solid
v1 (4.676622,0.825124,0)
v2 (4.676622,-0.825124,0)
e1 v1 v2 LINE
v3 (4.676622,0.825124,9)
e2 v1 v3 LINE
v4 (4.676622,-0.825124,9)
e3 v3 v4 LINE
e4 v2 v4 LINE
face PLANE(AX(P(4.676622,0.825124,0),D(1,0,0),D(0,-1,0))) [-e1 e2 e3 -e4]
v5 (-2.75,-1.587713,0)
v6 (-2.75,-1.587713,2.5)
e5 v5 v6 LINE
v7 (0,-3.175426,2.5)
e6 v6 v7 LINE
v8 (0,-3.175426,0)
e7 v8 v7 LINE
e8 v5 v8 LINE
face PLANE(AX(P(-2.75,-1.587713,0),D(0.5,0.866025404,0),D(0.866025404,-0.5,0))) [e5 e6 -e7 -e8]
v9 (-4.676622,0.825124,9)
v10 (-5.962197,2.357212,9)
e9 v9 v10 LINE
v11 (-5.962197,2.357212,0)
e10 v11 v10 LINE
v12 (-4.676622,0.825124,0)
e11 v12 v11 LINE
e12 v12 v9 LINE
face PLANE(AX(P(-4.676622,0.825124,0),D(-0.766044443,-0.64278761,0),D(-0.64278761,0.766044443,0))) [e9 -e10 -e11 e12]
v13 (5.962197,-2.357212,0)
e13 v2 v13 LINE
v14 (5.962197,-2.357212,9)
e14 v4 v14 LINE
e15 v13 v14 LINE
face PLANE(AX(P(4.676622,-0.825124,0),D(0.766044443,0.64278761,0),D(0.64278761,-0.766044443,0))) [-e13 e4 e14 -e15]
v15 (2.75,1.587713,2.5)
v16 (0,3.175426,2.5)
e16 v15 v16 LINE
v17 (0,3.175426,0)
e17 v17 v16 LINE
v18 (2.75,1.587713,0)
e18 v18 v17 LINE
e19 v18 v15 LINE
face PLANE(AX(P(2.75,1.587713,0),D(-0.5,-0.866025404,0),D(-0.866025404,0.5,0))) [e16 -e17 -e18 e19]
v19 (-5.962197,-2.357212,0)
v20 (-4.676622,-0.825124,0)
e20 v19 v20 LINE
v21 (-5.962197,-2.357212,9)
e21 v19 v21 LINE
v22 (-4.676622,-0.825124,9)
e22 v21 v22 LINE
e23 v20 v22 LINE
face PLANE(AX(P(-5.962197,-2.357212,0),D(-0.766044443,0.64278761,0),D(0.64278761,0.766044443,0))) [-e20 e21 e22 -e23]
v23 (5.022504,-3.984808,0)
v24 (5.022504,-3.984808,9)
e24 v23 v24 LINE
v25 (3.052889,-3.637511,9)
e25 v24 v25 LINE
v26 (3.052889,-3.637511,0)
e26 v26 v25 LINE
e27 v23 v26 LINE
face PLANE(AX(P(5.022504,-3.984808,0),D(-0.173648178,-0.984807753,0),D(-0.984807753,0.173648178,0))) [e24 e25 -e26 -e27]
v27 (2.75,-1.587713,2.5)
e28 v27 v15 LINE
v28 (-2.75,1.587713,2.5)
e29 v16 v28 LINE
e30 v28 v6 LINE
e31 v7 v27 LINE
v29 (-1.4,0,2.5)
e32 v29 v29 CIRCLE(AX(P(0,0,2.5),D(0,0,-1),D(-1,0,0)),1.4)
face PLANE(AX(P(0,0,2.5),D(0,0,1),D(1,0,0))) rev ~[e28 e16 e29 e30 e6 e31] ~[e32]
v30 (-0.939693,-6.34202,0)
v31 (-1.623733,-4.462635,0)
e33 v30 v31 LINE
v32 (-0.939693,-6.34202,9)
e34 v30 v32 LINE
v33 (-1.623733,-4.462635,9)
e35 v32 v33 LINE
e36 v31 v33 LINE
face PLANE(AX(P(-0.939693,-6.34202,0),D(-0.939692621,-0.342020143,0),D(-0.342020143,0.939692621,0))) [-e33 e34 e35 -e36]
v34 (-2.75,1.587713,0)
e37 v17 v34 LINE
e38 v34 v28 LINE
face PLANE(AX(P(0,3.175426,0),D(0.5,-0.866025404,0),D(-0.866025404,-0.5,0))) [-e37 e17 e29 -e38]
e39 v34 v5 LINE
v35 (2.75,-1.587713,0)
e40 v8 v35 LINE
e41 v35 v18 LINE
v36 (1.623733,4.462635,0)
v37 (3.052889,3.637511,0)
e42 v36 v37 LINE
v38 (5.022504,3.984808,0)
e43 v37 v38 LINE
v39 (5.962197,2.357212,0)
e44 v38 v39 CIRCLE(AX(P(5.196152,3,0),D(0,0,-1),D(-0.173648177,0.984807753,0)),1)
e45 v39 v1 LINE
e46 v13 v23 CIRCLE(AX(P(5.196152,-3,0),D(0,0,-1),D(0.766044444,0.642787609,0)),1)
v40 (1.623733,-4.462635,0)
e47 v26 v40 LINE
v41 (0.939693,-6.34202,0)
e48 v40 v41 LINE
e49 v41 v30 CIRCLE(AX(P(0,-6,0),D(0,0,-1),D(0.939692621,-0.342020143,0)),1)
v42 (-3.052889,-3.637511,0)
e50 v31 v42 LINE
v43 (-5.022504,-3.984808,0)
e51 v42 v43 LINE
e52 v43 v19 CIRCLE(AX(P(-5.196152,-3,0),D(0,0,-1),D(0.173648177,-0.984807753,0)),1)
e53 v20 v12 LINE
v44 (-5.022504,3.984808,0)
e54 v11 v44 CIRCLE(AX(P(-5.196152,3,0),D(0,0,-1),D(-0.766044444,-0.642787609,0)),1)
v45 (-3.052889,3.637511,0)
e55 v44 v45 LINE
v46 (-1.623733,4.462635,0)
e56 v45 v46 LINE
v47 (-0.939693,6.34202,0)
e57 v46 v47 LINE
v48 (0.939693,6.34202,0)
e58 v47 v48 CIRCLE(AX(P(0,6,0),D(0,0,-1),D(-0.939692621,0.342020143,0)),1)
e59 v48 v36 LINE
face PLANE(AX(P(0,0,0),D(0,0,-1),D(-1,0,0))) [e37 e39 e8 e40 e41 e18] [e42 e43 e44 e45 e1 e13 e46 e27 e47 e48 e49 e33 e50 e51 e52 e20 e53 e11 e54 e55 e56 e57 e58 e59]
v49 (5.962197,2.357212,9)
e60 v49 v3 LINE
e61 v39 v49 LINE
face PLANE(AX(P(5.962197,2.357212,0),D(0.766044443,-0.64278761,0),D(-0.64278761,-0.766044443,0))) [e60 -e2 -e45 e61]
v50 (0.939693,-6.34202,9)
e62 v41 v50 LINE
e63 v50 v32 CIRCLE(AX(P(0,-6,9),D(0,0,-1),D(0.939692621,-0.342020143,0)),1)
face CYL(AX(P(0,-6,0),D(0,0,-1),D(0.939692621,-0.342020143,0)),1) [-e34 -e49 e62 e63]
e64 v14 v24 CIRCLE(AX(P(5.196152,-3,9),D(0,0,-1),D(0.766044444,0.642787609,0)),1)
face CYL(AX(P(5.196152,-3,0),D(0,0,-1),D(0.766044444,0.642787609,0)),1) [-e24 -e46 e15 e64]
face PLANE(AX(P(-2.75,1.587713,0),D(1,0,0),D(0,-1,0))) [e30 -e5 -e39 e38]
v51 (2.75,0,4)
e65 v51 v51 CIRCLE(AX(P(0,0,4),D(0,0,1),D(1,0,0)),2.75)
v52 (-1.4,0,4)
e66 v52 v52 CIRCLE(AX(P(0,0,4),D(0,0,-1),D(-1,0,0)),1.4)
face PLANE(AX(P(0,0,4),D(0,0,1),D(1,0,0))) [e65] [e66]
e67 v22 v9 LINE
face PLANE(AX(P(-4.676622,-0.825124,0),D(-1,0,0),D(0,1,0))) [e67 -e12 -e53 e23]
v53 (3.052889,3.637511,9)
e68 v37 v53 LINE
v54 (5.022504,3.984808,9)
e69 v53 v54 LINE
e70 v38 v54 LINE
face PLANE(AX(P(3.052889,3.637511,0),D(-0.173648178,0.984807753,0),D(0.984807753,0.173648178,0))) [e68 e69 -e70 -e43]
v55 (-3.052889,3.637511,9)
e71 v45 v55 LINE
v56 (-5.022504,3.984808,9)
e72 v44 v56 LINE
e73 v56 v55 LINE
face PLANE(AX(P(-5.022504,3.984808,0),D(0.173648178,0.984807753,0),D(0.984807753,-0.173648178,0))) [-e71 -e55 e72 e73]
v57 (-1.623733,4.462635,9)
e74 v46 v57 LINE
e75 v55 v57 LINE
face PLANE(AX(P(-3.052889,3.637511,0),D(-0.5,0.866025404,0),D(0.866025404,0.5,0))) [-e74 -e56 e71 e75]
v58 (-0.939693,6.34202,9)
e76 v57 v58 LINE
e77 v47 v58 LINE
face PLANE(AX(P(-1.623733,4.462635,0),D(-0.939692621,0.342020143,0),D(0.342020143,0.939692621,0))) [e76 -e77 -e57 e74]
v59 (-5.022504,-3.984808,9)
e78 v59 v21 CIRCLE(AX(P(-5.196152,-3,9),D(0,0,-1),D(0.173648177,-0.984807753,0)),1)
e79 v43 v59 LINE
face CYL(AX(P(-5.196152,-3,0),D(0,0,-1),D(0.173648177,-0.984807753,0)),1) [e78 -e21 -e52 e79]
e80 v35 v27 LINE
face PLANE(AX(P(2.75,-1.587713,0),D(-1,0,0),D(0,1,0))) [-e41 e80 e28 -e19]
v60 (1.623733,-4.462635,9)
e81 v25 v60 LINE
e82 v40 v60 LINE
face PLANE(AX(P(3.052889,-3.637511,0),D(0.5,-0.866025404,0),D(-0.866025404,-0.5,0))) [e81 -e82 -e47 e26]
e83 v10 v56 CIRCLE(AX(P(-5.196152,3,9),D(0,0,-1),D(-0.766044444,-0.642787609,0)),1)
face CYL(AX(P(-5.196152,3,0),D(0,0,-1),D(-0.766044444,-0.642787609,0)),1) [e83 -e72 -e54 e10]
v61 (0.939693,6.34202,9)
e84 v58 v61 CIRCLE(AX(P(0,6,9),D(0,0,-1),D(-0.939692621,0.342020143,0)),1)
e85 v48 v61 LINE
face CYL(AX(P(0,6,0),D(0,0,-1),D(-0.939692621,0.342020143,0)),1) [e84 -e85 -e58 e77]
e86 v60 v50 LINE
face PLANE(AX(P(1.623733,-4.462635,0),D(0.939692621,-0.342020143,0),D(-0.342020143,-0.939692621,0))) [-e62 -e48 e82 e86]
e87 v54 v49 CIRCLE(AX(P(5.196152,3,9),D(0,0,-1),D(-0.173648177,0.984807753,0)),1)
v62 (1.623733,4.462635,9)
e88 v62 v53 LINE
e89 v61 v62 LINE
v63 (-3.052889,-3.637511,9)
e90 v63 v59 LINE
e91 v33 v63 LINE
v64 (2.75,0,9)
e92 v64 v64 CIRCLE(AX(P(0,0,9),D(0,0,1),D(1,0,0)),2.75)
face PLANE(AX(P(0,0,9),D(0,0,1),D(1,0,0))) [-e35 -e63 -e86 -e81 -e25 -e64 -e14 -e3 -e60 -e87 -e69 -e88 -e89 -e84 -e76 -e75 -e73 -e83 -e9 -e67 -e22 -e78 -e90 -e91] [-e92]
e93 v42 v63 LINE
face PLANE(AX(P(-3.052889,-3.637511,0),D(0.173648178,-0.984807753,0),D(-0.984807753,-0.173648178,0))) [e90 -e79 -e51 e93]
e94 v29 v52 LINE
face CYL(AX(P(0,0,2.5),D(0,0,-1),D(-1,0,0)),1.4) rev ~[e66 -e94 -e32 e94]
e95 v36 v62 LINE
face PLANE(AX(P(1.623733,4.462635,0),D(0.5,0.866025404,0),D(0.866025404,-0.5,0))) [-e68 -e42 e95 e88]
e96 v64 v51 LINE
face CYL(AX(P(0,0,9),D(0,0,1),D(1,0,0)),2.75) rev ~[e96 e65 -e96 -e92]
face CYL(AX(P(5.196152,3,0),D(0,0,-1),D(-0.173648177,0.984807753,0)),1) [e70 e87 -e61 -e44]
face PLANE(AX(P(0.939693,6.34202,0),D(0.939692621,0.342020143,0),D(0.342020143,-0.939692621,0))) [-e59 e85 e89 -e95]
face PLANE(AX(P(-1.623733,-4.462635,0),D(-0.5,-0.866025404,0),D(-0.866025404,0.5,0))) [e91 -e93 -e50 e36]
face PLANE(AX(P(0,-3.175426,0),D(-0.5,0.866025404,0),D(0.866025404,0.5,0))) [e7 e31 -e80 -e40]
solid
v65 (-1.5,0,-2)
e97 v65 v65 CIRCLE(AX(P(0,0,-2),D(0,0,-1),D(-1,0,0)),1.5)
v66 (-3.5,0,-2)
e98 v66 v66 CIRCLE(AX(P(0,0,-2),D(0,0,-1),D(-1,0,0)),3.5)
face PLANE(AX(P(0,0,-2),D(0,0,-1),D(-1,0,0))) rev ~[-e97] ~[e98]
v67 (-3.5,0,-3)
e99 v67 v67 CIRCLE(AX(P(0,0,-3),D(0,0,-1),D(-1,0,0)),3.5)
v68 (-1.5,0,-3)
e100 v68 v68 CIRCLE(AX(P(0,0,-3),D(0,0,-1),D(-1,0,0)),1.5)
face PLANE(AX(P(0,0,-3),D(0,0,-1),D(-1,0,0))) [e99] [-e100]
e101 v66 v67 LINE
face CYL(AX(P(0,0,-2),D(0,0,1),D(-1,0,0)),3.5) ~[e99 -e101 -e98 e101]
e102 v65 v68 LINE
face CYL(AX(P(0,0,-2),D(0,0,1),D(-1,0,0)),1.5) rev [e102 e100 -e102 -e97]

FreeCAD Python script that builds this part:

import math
import FreeCAD as App
import Part
import Sketcher
Q = App.Units.Quantity

doc = App.newDocument("Part")
body = doc.addObject("PartDesign::Body", "Body")

# Sketch on XY plane
sketch1 = body.newObject("Sketcher::SketchObject", "Sketch")
sketch1.AttachmentSupport = (doc.getObject("XY_Plane"), [""])
sketch1.MapMode = "FlatFace"
sketch1.addGeometry(Part.LineSegment(App.Vector(-0.9, 6.3, 0), App.Vector(-1.6, 4.5, 0)), False)
sketch1.addGeometry(Part.LineSegment(App.Vector(-1.6, 4.5, 0), App.Vector(-3.1, 3.6, 0)), False)
sketch1.addGeometry(Part.LineSegment(App.Vector(-3.1, 3.6, 0), App.Vector(-5, 4, 0)), False)
sketch1.addGeometry(Part.ArcOfCircle(Part.Circle(App.Vector(-5.2, 3, 0), App.Vector(0, 0, 1), 1), math.radians(80), math.radians(220)), False)
sketch1.addGeometry(Part.LineSegment(App.Vector(-6, 2.4, 0), App.Vector(-4.7, 0.8, 0)), False)
sketch1.addGeometry(Part.LineSegment(App.Vector(-4.7, 0.8, 0), App.Vector(-4.7, -0.8, 0)), False)
sketch1.addGeometry(Part.LineSegment(App.Vector(-4.7, -0.8, 0), App.Vector(-6, -2.4, 0)), False)
sketch1.addGeometry(Part.ArcOfCircle(Part.Circle(App.Vector(-5.2, -3, 0), App.Vector(0, 0, 1), 1), math.radians(140), math.radians(280)), False)
sketch1.addGeometry(Part.LineSegment(App.Vector(-5, -4, 0), App.Vector(-3.1, -3.6, 0)), False)
sketch1.addGeometry(Part.LineSegment(App.Vector(-3.1, -3.6, 0), App.Vector(-1.6, -4.5, 0)), False)
sketch1.addGeometry(Part.LineSegment(App.Vector(-1.6, -4.5, 0), App.Vector(-0.9, -6.3, 0)), False)
sketch1.addGeometry(Part.ArcOfCircle(Part.Circle(App.Vector(0, -6, 0), App.Vector(0, 0, 1), 1), math.radians(-160), math.radians(-20)), False)
sketch1.addGeometry(Part.LineSegment(App.Vector(0.9, -6.3, 0), App.Vector(1.6, -4.5, 0)), False)
sketch1.addGeometry(Part.LineSegment(App.Vector(1.6, -4.5, 0), App.Vector(3.1, -3.6, 0)), False)
sketch1.addGeometry(Part.LineSegment(App.Vector(3.1, -3.6, 0), App.Vector(5, -4, 0)), False)
sketch1.addGeometry(Part.ArcOfCircle(Part.Circle(App.Vector(5.2, -3, 0), App.Vector(0, 0, 1), 1), math.radians(-100), math.radians(40)), False)
sketch1.addGeometry(Part.LineSegment(App.Vector(6, -2.4, 0), App.Vector(4.7, -0.8, 0)), False)
sketch1.addGeometry(Part.LineSegment(App.Vector(4.7, -0.8, 0), App.Vector(4.7, 0.8, 0)), False)
sketch1.addGeometry(Part.LineSegment(App.Vector(4.7, 0.8, 0), App.Vector(6, 2.4, 0)), False)
sketch1.addGeometry(Part.ArcOfCircle(Part.Circle(App.Vector(5.2, 3, 0), App.Vector(0, 0, 1), 1), math.radians(-40), math.radians(100)), False)
sketch1.addGeometry(Part.LineSegment(App.Vector(5, 4, 0), App.Vector(3.1, 3.6, 0)), False)
sketch1.addGeometry(Part.LineSegment(App.Vector(3.1, 3.6, 0), App.Vector(1.6, 4.5, 0)), False)
sketch1.addGeometry(Part.LineSegment(App.Vector(1.6, 4.5, 0), App.Vector(0.9, 6.3, 0)), False)
sketch1.addGeometry(Part.ArcOfCircle(Part.Circle(App.Vector(0, 6, 0), App.Vector(0, 0, 1), 1), math.radians(20), math.radians(160)), False)
sketch1.addGeometry(Part.LineSegment(App.Vector(2.8, -1.6, 0), App.Vector(0, -3.2, 0)), False)
sketch1.addGeometry(Part.LineSegment(App.Vector(0, -3.2, 0), App.Vector(-2.8, -1.6, 0)), False)
sketch1.addGeometry(Part.LineSegment(App.Vector(-2.8, -1.6, 0), App.Vector(-2.8, 1.6, 0)), False)
sketch1.addGeometry(Part.LineSegment(App.Vector(-2.8, 1.6, 0), App.Vector(0, 3.2, 0)), False)
sketch1.addGeometry(Part.LineSegment(App.Vector(0, 3.2, 0), App.Vector(2.8, 1.6, 0)), False)
sketch1.addGeometry(Part.LineSegment(App.Vector(2.8, 1.6, 0), App.Vector(2.8, -1.6, 0)), False)
sketch1.addConstraint(Sketcher.Constraint("Coincident", 0, 2, 1, 1))
sketch1.addConstraint(Sketcher.Constraint("Coincident", 1, 2, 2, 1))
sketch1.addConstraint(Sketcher.Constraint("Tangent", 2, 2, 3, 1))
sketch1.addConstraint(Sketcher.Constraint("Tangent", 3, 2, 4, 1))
sketch1.addConstraint(Sketcher.Constraint("Coincident", 4, 2, 5, 1))
sketch1.addConstraint(Sketcher.Constraint("Coincident", 5, 2, 6, 1))
sketch1.addConstraint(Sketcher.Constraint("Tangent", 6, 2, 7, 1))
sketch1.addConstraint(Sketcher.Constraint("Tangent", 7, 2, 8, 1))
sketch1.addConstraint(Sketcher.Constraint("Coincident", 8, 2, 9, 1))
sketch1.addConstraint(Sketcher.Constraint("Coincident", 9, 2, 10, 1))
sketch1.addConstraint(Sketcher.Constraint("Tangent", 10, 2, 11, 1))
sketch1.addConstraint(Sketcher.Constraint("Tangent", 11, 2, 12, 1))
sketch1.addConstraint(Sketcher.Constraint("Coincident", 12, 2, 13, 1))
sketch1.addConstraint(Sketcher.Constraint("Coincident", 13, 2, 14, 1))
sketch1.addConstraint(Sketcher.Constraint("Tangent", 14, 2, 15, 1))
sketch1.addConstraint(Sketcher.Constraint("Tangent", 15, 2, 16, 1))
sketch1.addConstraint(Sketcher.Constraint("Coincident", 16, 2, 17, 1))
sketch1.addConstraint(Sketcher.Constraint("Coincident", 17, 2, 18, 1))
sketch1.addConstraint(Sketcher.Constraint("Tangent", 18, 2, 19, 1))
sketch1.addConstraint(Sketcher.Constraint("Tangent", 19, 2, 20, 1))
sketch1.addConstraint(Sketcher.Constraint("Coincident", 20, 2, 21, 1))
sketch1.addConstraint(Sketcher.Constraint("Coincident", 21, 2, 22, 1))
sketch1.addConstraint(Sketcher.Constraint("Tangent", 22, 2, 23, 1))
sketch1.addConstraint(Sketcher.Constraint("Tangent", 23, 2, 0, 1))
sketch1.addConstraint(Sketcher.Constraint("Coincident", 24, 2, 25, 1))
sketch1.addConstraint(Sketcher.Constraint("Coincident", 25, 2, 26, 1))
sketch1.addConstraint(Sketcher.Constraint("Coincident", 26, 2, 27, 1))
sketch1.addConstraint(Sketcher.Constraint("Coincident", 27, 2, 28, 1))
sketch1.addConstraint(Sketcher.Constraint("Coincident", 28, 2, 29, 1))
sketch1.addConstraint(Sketcher.Constraint("Coincident", 29, 2, 24, 1))
sketch1.addConstraint(Sketcher.Constraint("Vertical", 5))
sketch1.addConstraint(Sketcher.Constraint("Vertical", 17))
sketch1.addConstraint(Sketcher.Constraint("Vertical", 26))
sketch1.addConstraint(Sketcher.Constraint("Vertical", 29))
sketch1.addConstraint(Sketcher.Constraint("Equal", 3, 7))
sketch1.addConstraint(Sketcher.Constraint("Equal", 7, 11))
sketch1.addConstraint(Sketcher.Constraint("Equal", 11, 15))
sketch1.addConstraint(Sketcher.Constraint("Equal", 15, 19))
sketch1.addConstraint(Sketcher.Constraint("Equal", 19, 23))
sketch1.addConstraint(Sketcher.Constraint("Symmetric", 3, 3, 15, 3, -1, 1))
sketch1.addConstraint(Sketcher.Constraint("Symmetric", 7, 3, 19, 3, -1, 1))
sketch1.addConstraint(Sketcher.Constraint("Symmetric", 11, 3, 23, 3, -1, 1))
sketch1.addConstraint(Sketcher.Constraint("Symmetric", 0, 2, 12, 2, -1, 1))
sketch1.addConstraint(Sketcher.Constraint("Symmetric", 1, 2, 13, 2, -1, 1))
sketch1.addConstraint(Sketcher.Constraint("Symmetric", 4, 2, 16, 2, -1, 1))
sketch1.addConstraint(Sketcher.Constraint("Symmetric", 8, 2, 20, 2, -1, 1))
sketch1.addConstraint(Sketcher.Constraint("Symmetric", 9, 2, 21, 2, -1, 1))
sketch1.addConstraint(Sketcher.Constraint("Symmetric", 24, 2, 27, 2, -1, 1))
sketch1.addConstraint(Sketcher.Constraint("Symmetric", 25, 2, 28, 2, -1, 1))
sketch1.addConstraint(Sketcher.Constraint("Symmetric", 7, 3, 15, 3, -2))
sketch1.addConstraint(Sketcher.Constraint("Symmetric", 10, 2, 11, 2, -2))
sketch1.addConstraint(Sketcher.Constraint("Symmetric", 8, 2, 13, 2, -2))
sketch1.addConstraint(Sketcher.Constraint("PointOnObject", 24, 2, -2))
sketch1.addConstraint(Sketcher.Constraint("Parallel", 6, 18))
sketch1.addConstraint(Sketcher.Constraint("Parallel", 13, 24))
sketch1.addConstraint(Sketcher.Constraint("Parallel", 21, 25))
sketch1.addConstraint(Sketcher.Constraint("Parallel", 24, 27))
sketch1.addConstraint(Sketcher.Constraint("Horizontal", 9, 2, 12, 2))
sketch1.addConstraint(Sketcher.Constraint("Horizontal", 6, 2, 15, 2))
sketch1.addConstraint(Sketcher.Constraint("Equal", 0, 2))
sketch1.addConstraint(Sketcher.Constraint("Equal", 2, 4))
sketch1.addConstraint(Sketcher.Constraint("Radius", 3, 1.0))
sketch1.addConstraint(Sketcher.Constraint("Angle", 0, Q("-110 deg")))
sketch1.addConstraint(Sketcher.Constraint("Angle", 1, Q("-150 deg")))
sketch1.addConstraint(Sketcher.Constraint("Angle", 2, Q("170 deg")))
sketch1.addConstraint(Sketcher.Constraint("Angle", 4, Q("-50 deg")))
sketch1.addConstraint(Sketcher.Constraint("Distance", 0, 2.0))
sketch1.addConstraint(Sketcher.Constraint("DistanceY", -1, 1, 3, 3, 3.0))
sketch1.addConstraint(Sketcher.Constraint("DistanceY", 11, 3, -1, 1, 6.0))
sketch1.addConstraint(Sketcher.Constraint("DistanceX", 25, 2, -1, 1, 2.75))
sketch1.addConstraint(Sketcher.Constraint("DistanceY", 8, 2, 25, 2, 2.049798))
pad1 = body.newObject("PartDesign::Pad", "Pad")
pad1.Profile = sketch1
pad1.Length = 9

# Sketch on XY plane
sketch2 = body.newObject("Sketcher::SketchObject", "Sketch001")
sketch2.AttachmentSupport = (doc.getObject("XY_Plane"), [""])
sketch2.MapMode = "FlatFace"
sketch2.AttachmentOffset = App.Placement(App.Vector(0, 0, 2.5), App.Rotation())
sketch2.addGeometry(Part.LineSegment(App.Vector(0, 3.2, 0), App.Vector(2.8, 1.6, 0)), False)
sketch2.addGeometry(Part.LineSegment(App.Vector(2.8, 1.6, 0), App.Vector(2.8, -1.6, 0)), False)
sketch2.addGeometry(Part.LineSegment(App.Vector(2.8, -1.6, 0), App.Vector(0, -3.2, 0)), False)
sketch2.addGeometry(Part.LineSegment(App.Vector(0, -3.2, 0), App.Vector(-2.8, -1.6, 0)), False)
sketch2.addGeometry(Part.LineSegment(App.Vector(-2.8, -1.6, 0), App.Vector(-2.8, 1.6, 0)), False)
sketch2.addGeometry(Part.LineSegment(App.Vector(-2.8, 1.6, 0), App.Vector(0, 3.2, 0)), False)
sketch2.addGeometry(Part.Circle(App.Vector(0, 0, 0), App.Vector(0, 0, 1), 1.4), False)
sketch2.addConstraint(Sketcher.Constraint("Coincident", 0, 2, 1, 1))
sketch2.addConstraint(Sketcher.Constraint("Coincident", 1, 2, 2, 1))
sketch2.addConstraint(Sketcher.Constraint("Coincident", 2, 2, 3, 1))
sketch2.addConstraint(Sketcher.Constraint("Coincident", 3, 2, 4, 1))
sketch2.addConstraint(Sketcher.Constraint("Coincident", 4, 2, 5, 1))
sketch2.addConstraint(Sketcher.Constraint("Coincident", 5, 2, 0, 1))
sketch2.addConstraint(Sketcher.Constraint("Vertical", 1))
sketch2.addConstraint(Sketcher.Constraint("Vertical", 4))
sketch2.addConstraint(Sketcher.Constraint("Coincident", 6, 3, -1, 1))
sketch2.addConstraint(Sketcher.Constraint("Symmetric", 0, 2, 3, 2, -1, 1))
sketch2.addConstraint(Sketcher.Constraint("Symmetric", 2, 2, 5, 2, -1, 1))
sketch2.addConstraint(Sketcher.Constraint("PointOnObject", 2, 2, -2))
sketch2.addConstraint(Sketcher.Constraint("Parallel", 2, 5))
sketch2.addConstraint(Sketcher.Constraint("Horizontal", 1, 2, 3, 2))
sketch2.addConstraint(Sketcher.Constraint("Diameter", 6, 2.8))
sketch2.addConstraint(Sketcher.Constraint("Angle", 0, Q("-30 deg")))
sketch2.addConstraint(Sketcher.Constraint("DistanceX", 3, 2, 1, 2, 5.5))
sketch2.addConstraint(Sketcher.Constraint("DistanceY", 1, 2, 1, 1, 3.175426))
pad2 = body.newObject("PartDesign::Pad", "Pad001")
pad2.Profile = sketch2
pad2.Length = 6.5

# Sketch on XY plane
sketch3 = body.newObject("Sketcher::SketchObject", "Sketch002")
sketch3.AttachmentSupport = (doc.getObject("XY_Plane"), [""])
sketch3.MapMode = "FlatFace"
sketch3.AttachmentOffset = App.Placement(App.Vector(0, 0, 9), App.Rotation())
sketch3.addGeometry(Part.Circle(App.Vector(0, 0, 0), App.Vector(0, 0, 1), 2.8), False)
sketch3.addConstraint(Sketcher.Constraint("Coincident", 0, 3, -1, 1))
sketch3.addConstraint(Sketcher.Constraint("Diameter", 0, 5.5))
pocket1 = body.newObject("PartDesign::Pocket", "Pocket")
pocket1.Profile = sketch3
pocket1.Length = 5
body2 = doc.addObject("PartDesign::Body", "Body001")

# Sketch on XY plane
sketch4 = body2.newObject("Sketcher::SketchObject", "Sketch003")
sketch4.AttachmentSupport = (doc.getObject("XY_Plane001"), [""])
sketch4.MapMode = "FlatFace"
sketch4.AttachmentOffset = App.Placement(App.Vector(0, 0, -2), App.Rotation())
sketch4.addGeometry(Part.Circle(App.Vector(0, 0, 0), App.Vector(0, 0, 1), 3.5), False)
sketch4.addGeometry(Part.Circle(App.Vector(0, 0, 0), App.Vector(0, 0, 1), 1.5), False)
sketch4.addConstraint(Sketcher.Constraint("Coincident", 0, 3, -1, 1))
sketch4.addConstraint(Sketcher.Constraint("Coincident", 1, 3, -1, 1))
sketch4.addConstraint(Sketcher.Constraint("Diameter", 0, 7.0))
sketch4.addConstraint(Sketcher.Constraint("Diameter", 1, 3.0))
pad3 = body2.newObject("PartDesign::Pad", "Pad002")
pad3.Profile = sketch4
pad3.Length = 1
pad3.Reversed = True

doc.recompute()
